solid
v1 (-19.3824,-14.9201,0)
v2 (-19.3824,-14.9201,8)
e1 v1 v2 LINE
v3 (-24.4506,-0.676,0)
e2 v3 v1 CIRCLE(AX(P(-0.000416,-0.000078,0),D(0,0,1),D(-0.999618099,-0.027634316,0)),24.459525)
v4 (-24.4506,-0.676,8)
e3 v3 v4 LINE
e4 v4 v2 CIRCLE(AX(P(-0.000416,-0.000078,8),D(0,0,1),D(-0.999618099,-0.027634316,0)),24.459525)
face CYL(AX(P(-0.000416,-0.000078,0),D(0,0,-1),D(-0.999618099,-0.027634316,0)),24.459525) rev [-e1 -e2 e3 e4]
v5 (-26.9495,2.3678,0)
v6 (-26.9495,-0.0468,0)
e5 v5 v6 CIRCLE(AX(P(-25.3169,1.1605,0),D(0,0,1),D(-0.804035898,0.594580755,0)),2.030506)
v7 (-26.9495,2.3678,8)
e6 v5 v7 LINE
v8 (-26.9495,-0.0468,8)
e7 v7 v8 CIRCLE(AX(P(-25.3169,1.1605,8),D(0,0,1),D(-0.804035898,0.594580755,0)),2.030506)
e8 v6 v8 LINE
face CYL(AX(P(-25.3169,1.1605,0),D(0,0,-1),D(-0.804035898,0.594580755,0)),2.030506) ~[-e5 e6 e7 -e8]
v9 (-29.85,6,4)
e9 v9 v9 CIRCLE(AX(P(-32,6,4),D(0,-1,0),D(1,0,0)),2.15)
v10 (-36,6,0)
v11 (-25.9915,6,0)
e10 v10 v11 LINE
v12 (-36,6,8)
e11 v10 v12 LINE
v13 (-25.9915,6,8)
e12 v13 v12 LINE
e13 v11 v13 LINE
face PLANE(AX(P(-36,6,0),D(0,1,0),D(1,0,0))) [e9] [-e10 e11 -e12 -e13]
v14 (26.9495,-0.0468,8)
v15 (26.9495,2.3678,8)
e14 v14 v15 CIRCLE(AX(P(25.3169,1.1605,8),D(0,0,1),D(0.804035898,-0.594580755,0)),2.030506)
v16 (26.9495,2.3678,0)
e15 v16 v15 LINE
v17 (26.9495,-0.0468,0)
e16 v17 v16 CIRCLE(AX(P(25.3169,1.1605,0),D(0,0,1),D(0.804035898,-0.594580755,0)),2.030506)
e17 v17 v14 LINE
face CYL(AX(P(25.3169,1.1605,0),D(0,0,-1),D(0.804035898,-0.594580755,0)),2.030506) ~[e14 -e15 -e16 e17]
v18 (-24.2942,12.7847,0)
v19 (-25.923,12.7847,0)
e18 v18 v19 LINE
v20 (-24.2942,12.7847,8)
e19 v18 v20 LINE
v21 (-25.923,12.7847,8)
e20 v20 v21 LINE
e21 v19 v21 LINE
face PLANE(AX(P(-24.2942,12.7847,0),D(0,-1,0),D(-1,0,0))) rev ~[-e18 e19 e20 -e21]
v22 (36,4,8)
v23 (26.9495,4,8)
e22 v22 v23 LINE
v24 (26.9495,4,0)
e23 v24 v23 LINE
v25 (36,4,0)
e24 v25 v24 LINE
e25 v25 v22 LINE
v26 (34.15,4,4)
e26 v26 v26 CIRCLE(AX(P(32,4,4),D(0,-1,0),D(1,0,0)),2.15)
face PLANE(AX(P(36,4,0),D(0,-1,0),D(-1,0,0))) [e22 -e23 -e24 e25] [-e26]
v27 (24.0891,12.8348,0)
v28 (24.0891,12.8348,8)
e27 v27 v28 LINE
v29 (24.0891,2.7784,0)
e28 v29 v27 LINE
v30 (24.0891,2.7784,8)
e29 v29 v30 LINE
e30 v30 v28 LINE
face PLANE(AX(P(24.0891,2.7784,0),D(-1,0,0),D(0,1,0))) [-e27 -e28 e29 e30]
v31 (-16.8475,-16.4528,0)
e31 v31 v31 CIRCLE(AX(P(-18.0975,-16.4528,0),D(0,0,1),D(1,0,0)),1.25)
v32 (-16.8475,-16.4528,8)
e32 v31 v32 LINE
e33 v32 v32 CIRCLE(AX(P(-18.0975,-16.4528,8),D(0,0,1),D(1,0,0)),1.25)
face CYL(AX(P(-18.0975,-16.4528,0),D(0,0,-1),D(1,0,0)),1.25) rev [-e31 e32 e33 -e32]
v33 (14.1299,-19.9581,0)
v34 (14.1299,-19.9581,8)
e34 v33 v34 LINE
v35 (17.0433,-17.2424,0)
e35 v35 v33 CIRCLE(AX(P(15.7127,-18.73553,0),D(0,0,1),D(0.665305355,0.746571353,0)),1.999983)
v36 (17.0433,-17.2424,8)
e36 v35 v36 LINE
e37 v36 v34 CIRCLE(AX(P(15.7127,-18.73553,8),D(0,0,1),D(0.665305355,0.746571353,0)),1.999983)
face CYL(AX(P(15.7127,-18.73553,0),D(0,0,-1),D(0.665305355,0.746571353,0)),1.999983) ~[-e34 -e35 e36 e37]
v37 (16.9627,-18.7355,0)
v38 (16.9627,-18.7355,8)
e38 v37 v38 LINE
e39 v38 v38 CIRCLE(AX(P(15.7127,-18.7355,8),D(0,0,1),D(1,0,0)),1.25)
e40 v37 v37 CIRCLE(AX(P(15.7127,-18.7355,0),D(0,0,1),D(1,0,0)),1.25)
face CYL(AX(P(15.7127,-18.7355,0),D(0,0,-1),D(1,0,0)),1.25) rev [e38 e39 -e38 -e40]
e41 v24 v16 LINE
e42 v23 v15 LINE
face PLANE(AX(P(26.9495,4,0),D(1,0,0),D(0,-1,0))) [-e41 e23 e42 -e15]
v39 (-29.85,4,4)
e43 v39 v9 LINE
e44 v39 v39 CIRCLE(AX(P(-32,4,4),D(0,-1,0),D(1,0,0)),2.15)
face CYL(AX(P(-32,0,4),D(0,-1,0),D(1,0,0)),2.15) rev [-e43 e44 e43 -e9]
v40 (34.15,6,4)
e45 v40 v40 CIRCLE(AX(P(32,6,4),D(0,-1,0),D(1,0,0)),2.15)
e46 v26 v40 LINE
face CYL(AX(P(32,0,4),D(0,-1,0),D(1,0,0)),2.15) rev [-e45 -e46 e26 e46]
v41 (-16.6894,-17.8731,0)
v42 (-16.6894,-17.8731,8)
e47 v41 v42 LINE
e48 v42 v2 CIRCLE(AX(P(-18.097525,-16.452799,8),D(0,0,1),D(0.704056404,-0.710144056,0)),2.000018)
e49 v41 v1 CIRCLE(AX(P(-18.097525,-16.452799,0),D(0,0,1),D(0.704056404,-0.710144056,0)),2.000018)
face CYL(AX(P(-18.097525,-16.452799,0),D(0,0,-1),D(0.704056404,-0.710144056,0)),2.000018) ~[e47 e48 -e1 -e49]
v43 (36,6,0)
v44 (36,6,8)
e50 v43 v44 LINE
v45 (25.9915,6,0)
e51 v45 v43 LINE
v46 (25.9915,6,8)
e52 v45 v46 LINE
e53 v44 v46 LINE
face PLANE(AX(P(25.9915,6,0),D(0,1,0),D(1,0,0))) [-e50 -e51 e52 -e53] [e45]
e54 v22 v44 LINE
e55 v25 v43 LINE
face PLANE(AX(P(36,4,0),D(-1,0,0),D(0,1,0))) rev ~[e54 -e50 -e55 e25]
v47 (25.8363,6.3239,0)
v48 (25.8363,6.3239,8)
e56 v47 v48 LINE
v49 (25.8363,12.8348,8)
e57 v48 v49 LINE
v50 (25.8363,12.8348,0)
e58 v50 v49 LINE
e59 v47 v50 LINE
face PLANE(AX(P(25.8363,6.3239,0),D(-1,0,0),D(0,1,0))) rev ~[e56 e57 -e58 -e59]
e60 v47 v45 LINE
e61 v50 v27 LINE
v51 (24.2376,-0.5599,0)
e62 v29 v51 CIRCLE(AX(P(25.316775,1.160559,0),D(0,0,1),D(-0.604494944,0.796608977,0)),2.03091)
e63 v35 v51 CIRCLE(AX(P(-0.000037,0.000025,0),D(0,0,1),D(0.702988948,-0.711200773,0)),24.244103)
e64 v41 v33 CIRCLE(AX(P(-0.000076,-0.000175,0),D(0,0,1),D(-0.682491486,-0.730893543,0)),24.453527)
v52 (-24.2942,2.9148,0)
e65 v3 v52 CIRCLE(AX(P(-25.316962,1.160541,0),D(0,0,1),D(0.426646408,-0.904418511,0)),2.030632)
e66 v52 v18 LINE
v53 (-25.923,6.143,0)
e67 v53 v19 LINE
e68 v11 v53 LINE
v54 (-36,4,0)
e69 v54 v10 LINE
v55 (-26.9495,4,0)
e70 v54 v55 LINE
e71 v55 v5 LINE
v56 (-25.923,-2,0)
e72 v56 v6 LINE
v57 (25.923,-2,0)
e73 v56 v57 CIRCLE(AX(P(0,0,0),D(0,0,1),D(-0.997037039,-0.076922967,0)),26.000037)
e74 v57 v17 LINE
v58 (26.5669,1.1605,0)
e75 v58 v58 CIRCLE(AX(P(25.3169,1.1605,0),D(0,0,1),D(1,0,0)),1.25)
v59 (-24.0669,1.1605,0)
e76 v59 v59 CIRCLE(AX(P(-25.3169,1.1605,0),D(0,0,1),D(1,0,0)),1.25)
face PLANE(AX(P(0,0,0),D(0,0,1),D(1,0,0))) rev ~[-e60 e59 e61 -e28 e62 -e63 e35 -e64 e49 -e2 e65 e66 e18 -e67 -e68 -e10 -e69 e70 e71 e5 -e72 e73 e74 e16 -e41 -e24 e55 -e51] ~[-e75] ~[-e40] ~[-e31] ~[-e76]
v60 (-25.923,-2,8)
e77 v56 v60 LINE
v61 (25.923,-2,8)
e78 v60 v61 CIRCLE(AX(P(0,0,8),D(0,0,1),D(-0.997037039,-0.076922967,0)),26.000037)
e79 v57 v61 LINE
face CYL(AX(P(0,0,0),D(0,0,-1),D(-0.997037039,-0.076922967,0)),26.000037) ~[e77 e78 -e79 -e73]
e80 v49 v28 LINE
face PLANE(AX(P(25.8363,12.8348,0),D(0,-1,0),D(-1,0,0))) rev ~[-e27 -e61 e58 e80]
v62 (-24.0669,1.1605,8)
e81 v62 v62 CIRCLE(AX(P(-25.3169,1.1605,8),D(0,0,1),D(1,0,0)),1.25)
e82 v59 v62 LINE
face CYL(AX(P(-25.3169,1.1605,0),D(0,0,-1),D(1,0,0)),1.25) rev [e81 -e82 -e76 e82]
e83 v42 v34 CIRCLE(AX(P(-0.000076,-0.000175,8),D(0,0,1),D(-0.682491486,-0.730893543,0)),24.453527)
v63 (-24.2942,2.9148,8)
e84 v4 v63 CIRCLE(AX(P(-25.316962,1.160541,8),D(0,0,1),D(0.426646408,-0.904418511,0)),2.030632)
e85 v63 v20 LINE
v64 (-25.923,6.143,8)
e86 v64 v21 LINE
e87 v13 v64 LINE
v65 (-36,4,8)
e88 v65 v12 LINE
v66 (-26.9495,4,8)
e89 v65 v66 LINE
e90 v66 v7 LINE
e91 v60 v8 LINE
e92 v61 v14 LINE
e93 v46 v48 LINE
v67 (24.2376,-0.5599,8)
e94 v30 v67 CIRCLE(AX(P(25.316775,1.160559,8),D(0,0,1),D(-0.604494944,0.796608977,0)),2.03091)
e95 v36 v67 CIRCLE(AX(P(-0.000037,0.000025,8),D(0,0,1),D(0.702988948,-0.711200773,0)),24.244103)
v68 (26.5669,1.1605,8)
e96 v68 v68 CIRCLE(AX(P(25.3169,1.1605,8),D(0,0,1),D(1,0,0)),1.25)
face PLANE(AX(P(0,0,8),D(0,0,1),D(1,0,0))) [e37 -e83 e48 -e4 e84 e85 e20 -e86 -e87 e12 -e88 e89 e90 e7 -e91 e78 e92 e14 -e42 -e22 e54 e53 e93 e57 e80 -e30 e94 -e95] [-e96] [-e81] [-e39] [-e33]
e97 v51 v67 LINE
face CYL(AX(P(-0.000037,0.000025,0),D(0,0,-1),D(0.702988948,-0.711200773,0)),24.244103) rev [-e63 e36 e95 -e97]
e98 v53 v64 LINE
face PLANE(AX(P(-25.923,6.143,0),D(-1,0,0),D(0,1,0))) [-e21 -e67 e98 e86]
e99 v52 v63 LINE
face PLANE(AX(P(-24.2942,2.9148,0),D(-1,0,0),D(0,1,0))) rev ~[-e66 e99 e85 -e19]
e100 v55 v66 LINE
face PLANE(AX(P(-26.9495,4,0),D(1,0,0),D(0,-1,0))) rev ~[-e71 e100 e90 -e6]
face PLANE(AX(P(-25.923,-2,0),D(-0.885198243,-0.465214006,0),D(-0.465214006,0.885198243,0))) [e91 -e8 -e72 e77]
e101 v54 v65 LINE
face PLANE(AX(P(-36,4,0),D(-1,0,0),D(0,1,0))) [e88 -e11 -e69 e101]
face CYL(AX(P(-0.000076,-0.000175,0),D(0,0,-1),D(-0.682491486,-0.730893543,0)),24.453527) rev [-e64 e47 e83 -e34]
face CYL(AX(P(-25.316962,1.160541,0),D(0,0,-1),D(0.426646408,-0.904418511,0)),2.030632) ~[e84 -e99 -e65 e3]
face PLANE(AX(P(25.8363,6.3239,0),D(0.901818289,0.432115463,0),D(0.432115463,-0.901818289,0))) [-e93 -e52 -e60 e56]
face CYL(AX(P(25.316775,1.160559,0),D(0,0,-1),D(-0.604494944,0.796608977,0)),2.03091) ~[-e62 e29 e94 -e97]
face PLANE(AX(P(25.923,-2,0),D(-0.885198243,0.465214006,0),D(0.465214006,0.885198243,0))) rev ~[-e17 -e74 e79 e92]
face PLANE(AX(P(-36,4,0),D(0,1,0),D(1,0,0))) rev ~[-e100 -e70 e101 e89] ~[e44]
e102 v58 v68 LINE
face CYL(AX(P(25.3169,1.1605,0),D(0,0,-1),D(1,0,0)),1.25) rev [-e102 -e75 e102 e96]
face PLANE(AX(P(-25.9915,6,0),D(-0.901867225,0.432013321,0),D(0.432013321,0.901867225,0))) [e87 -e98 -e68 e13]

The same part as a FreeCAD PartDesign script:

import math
import FreeCAD as App
import Part
import Sketcher
Q = App.Units.Quantity

doc = App.newDocument("Part")
body = doc.addObject("PartDesign::Body", "Body")

# Sketch on XY plane
sketch1 = body.newObject("Sketcher::SketchObject", "Sketch")
sketch1.AttachmentSupport = (doc.getObject("XY_Plane"), [""])
sketch1.MapMode = "FlatFace"
sketch1.addGeometry(Part.ArcOfCircle(Part.Circle(App.Vector(0, 0, 0), App.Vector(0, 0, 1), 24.45), math.radians(-133), math.radians(-55)), False)
sketch1.addGeometry(Part.ArcOfCircle(Part.Circle(App.Vector(-18.1, -16.45, 0), App.Vector(0, 0, 1), 2), math.radians(-45), math.radians(130)), False)
sketch1.addGeometry(Part.ArcOfCircle(Part.Circle(App.Vector(0, 0, 0), App.Vector(0, 0, 1), 24.46), math.radians(-178), math.radians(-142)), False)
sketch1.addGeometry(Part.ArcOfCircle(Part.Circle(App.Vector(-25.32, 1.16, 0), App.Vector(0, 0, 1), 2.03), math.radians(-65), math.radians(60)), False)
sketch1.addGeometry(Part.LineSegment(App.Vector(-24.29, 2.91, 0), App.Vector(-24.29, 12.78, 0)), False)
sketch1.addGeometry(Part.LineSegment(App.Vector(-24.29, 12.78, 0), App.Vector(-25.92, 12.78, 0)), False)
sketch1.addGeometry(Part.LineSegment(App.Vector(-25.92, 12.78, 0), App.Vector(-25.92, 6.14, 0)), False)
sketch1.addGeometry(Part.LineSegment(App.Vector(-25.92, 6.14, 0), App.Vector(-25.99, 6, 0)), False)
sketch1.addGeometry(Part.LineSegment(App.Vector(-25.99, 6, 0), App.Vector(-36, 6, 0)), False)
sketch1.addGeometry(Part.LineSegment(App.Vector(-36, 6, 0), App.Vector(-36, 4, 0)), False)
sketch1.addGeometry(Part.LineSegment(App.Vector(-36, 4, 0), App.Vector(-26.95, 4, 0)), False)
sketch1.addGeometry(Part.LineSegment(App.Vector(-26.95, 4, 0), App.Vector(-26.95, 2.37, 0)), False)
sketch1.addGeometry(Part.ArcOfCircle(Part.Circle(App.Vector(-25.32, 1.16, 0), App.Vector(0, 0, 1), 2.03), math.radians(144), math.radians(216)), False)
sketch1.addGeometry(Part.LineSegment(App.Vector(-26.95, -0.05, 0), App.Vector(-25.92, -2, 0)), False)
sketch1.addGeometry(Part.ArcOfCircle(Part.Circle(App.Vector(0, 0, 0), App.Vector(0, 0, 1), 26), math.radians(-176), math.radians(-4)), False)
sketch1.addGeometry(Part.LineSegment(App.Vector(25.92, -2, 0), App.Vector(26.95, -0.05, 0)), False)
sketch1.addGeometry(Part.ArcOfCircle(Part.Circle(App.Vector(25.32, 1.16, 0), App.Vector(0, 0, 1), 2.03), math.radians(-36), math.radians(36)), False)
sketch1.addGeometry(Part.LineSegment(App.Vector(26.95, 2.37, 0), App.Vector(26.95, 4, 0)), False)
sketch1.addGeometry(Part.LineSegment(App.Vector(26.95, 4, 0), App.Vector(36, 4, 0)), False)
sketch1.addGeometry(Part.LineSegment(App.Vector(36, 4, 0), App.Vector(36, 6, 0)), False)
sketch1.addGeometry(Part.LineSegment(App.Vector(36, 6, 0), App.Vector(25.99, 6, 0)), False)
sketch1.addGeometry(Part.LineSegment(App.Vector(25.99, 6, 0), App.Vector(25.84, 6.32, 0)), False)
sketch1.addGeometry(Part.LineSegment(App.Vector(25.84, 6.32, 0), App.Vector(25.84, 12.83, 0)), False)
sketch1.addGeometry(Part.LineSegment(App.Vector(25.84, 12.83, 0), App.Vector(24.09, 12.83, 0)), False)
sketch1.addGeometry(Part.LineSegment(App.Vector(24.09, 12.83, 0), App.Vector(24.09, 2.78, 0)), False)
sketch1.addGeometry(Part.ArcOfCircle(Part.Circle(App.Vector(25.32, 1.16, 0), App.Vector(0, 0, 1), 2.03), math.radians(127), math.radians(238)), False)
sketch1.addGeometry(Part.ArcOfCircle(Part.Circle(App.Vector(0, 0, 0), App.Vector(0, 0, 1), 24.24), math.radians(-45), math.radians(-1)), False)
sketch1.addGeometry(Part.ArcOfCircle(Part.Circle(App.Vector(15.71, -18.74, 0), App.Vector(0, 0, 1), 2), math.radians(48), math.radians(218)), False)
sketch1.addGeometry(Part.Circle(App.Vector(-18.1, -16.45, 0), App.Vector(0, 0, 1), 1.25), False)
sketch1.addGeometry(Part.Circle(App.Vector(15.71, -18.74, 0), App.Vector(0, 0, 1), 1.25), False)
sketch1.addGeometry(Part.Circle(App.Vector(-25.32, 1.16, 0), App.Vector(0, 0, 1), 1.25), False)
sketch1.addGeometry(Part.Circle(App.Vector(25.32, 1.16, 0), App.Vector(0, 0, 1), 1.25), False)
sketch1.addConstraint(Sketcher.Constraint("Coincident", 0, 1, 1, 1))
sketch1.addConstraint(Sketcher.Constraint("Coincident", 1, 2, 2, 2))
sketch1.addConstraint(Sketcher.Constraint("Coincident", 2, 1, 3, 1))
sketch1.addConstraint(Sketcher.Constraint("Coincident", 3, 2, 4, 1))
sketch1.addConstraint(Sketcher.Constraint("Coincident", 4, 2, 5, 1))
sketch1.addConstraint(Sketcher.Constraint("Coincident", 5, 2, 6, 1))
sketch1.addConstraint(Sketcher.Constraint("Coincident", 6, 2, 7, 1))
sketch1.addConstraint(Sketcher.Constraint("Coincident", 7, 2, 8, 1))
sketch1.addConstraint(Sketcher.Constraint("Coincident", 8, 2, 9, 1))
sketch1.addConstraint(Sketcher.Constraint("Coincident", 9, 2, 10, 1))
sketch1.addConstraint(Sketcher.Constraint("Coincident", 10, 2, 11, 1))
sketch1.addConstraint(Sketcher.Constraint("Coincident", 11, 2, 12, 1))
sketch1.addConstraint(Sketcher.Constraint("Coincident", 12, 2, 13, 1))
sketch1.addConstraint(Sketcher.Constraint("Coincident", 13, 2, 14, 1))
sketch1.addConstraint(Sketcher.Constraint("Coincident", 14, 2, 15, 1))
sketch1.addConstraint(Sketcher.Constraint("Coincident", 15, 2, 16, 1))
sketch1.addConstraint(Sketcher.Constraint("Coincident", 16, 2, 17, 1))
sketch1.addConstraint(Sketcher.Constraint("Coincident", 17, 2, 18, 1))
sketch1.addConstraint(Sketcher.Constraint("Coincident", 18, 2, 19, 1))
sketch1.addConstraint(Sketcher.Constraint("Coincident", 19, 2, 20, 1))
sketch1.addConstraint(Sketcher.Constraint("Coincident", 20, 2, 21, 1))
sketch1.addConstraint(Sketcher.Constraint("Coincident", 21, 2, 22, 1))
sketch1.addConstraint(Sketcher.Constraint("Coincident", 22, 2, 23, 1))
sketch1.addConstraint(Sketcher.Constraint("Coincident", 23, 2, 24, 1))
sketch1.addConstraint(Sketcher.Constraint("Coincident", 24, 2, 25, 1))
sketch1.addConstraint(Sketcher.Constraint("Coincident", 25, 2, 26, 2))
sketch1.addConstraint(Sketcher.Constraint("Coincident", 26, 1, 27, 1))
sketch1.addConstraint(Sketcher.Constraint("Coincident", 27, 2, 0, 2))
sketch1.addConstraint(Sketcher.Constraint("Vertical", 4))
sketch1.addConstraint(Sketcher.Constraint("Horizontal", 5))
sketch1.addConstraint(Sketcher.Constraint("Vertical", 6))
sketch1.addConstraint(Sketcher.Constraint("Horizontal", 8))
sketch1.addConstraint(Sketcher.Constraint("Vertical", 9))
sketch1.addConstraint(Sketcher.Constraint("Horizontal", 10))
sketch1.addConstraint(Sketcher.Constraint("Vertical", 11))
sketch1.addConstraint(Sketcher.Constraint("Vertical", 17))
sketch1.addConstraint(Sketcher.Constraint("Horizontal", 18))
sketch1.addConstraint(Sketcher.Constraint("Vertical", 19))
sketch1.addConstraint(Sketcher.Constraint("Horizontal", 20))
sketch1.addConstraint(Sketcher.Constraint("Vertical", 22))
sketch1.addConstraint(Sketcher.Constraint("Horizontal", 23))
sketch1.addConstraint(Sketcher.Constraint("Vertical", 24))
sketch1.addConstraint(Sketcher.Constraint("Coincident", 0, 3, -1, 1))
sketch1.addConstraint(Sketcher.Constraint("Coincident", 2, 3, -1, 1))
sketch1.addConstraint(Sketcher.Constraint("Coincident", 14, 3, -1, 1))
sketch1.addConstraint(Sketcher.Constraint("Coincident", 26, 3, -1, 1))
sketch1.addConstraint(Sketcher.Constraint("Coincident", 12, 3, 3, 3))
sketch1.addConstraint(Sketcher.Constraint("Coincident", 25, 3, 16, 3))
sketch1.addConstraint(Sketcher.Constraint("Coincident", 28, 3, 1, 3))
sketch1.addConstraint(Sketcher.Constraint("Coincident", 29, 3, 27, 3))
sketch1.addConstraint(Sketcher.Constraint("Coincident", 30, 3, 3, 3))
sketch1.addConstraint(Sketcher.Constraint("Coincident", 31, 3, 16, 3))
sketch1.addConstraint(Sketcher.Constraint("Equal", 3, 12))
sketch1.addConstraint(Sketcher.Constraint("Equal", 12, 16))
sketch1.addConstraint(Sketcher.Constraint("Equal", 1, 27))
sketch1.addConstraint(Sketcher.Constraint("Equal", 28, 29))
sketch1.addConstraint(Sketcher.Constraint("Equal", 29, 30))
sketch1.addConstraint(Sketcher.Constraint("Equal", 30, 31))
sketch1.addConstraint(Sketcher.Constraint("Symmetric", 3, 3, 16, 3, -2))
sketch1.addConstraint(Sketcher.Constraint("Symmetric", 10, 2, 17, 2, -2))
sketch1.addConstraint(Sketcher.Constraint("Symmetric", 8, 2, 19, 2, -2))
sketch1.addConstraint(Sketcher.Constraint("Horizontal", 13, 2, 14, 2))
sketch1.addConstraint(Sketcher.Constraint("Horizontal", 12, 2, 15, 2))
sketch1.addConstraint(Sketcher.Constraint("Vertical", 11, 2, 12, 2))
sketch1.addConstraint(Sketcher.Constraint("Vertical", 6, 2, 13, 2))
sketch1.addConstraint(Sketcher.Constraint("Equal", 8, 20))
sketch1.addConstraint(Sketcher.Constraint("Radius", 1, Q("2 mm")))
sketch1.addConstraint(Sketcher.Constraint("Diameter", 28, Q("2.5 mm")))
sketch1.addConstraint(Sketcher.Constraint("DistanceY", -1, 1, 9, 2, Q("4 mm")))
sketch1.addConstraint(Sketcher.Constraint("Radius", 14, Q("26 mm")))
sketch1.addConstraint(Sketcher.Constraint("DistanceY", 9, 2, 9, 1, Q("2 mm")))
sketch1.addConstraint(Sketcher.Constraint("Radius", 2, Q("24.46 mm")))
sketch1.addConstraint(Sketcher.Constraint("DistanceX", 8, 2, -1, 1, Q("36 mm")))
sketch1.addConstraint(Sketcher.Constraint("DistanceY", 13, 2, -1, 1, Q("2 mm")))
sketch1.addConstraint(Sketcher.Constraint("Radius", 25, Q("2.031 mm")))
sketch1.addConstraint(Sketcher.Constraint("Radius", 26, Q("24.244 mm")))
sketch1.addConstraint(Sketcher.Constraint("DistanceY", 4, 1, 4, 2, Q("9.87 mm")))
sketch1.addConstraint(Sketcher.Constraint("Radius", 0, Q("24.4537 mm")))
sketch1.addConstraint(Sketcher.Constraint("Radius", 3, Q("2.0306 mm")))
sketch1.addConstraint(Sketcher.Constraint("DistanceY", 22, 1, 22, 2, Q("6.511 mm")))
sketch1.addConstraint(Sketcher.Constraint("DistanceY", 25, 2, -1, 1, Q("0.56 mm")))
sketch1.addConstraint(Sketcher.Constraint("DistanceX", -1, 1, 27, 2, Q("14.13 mm")))
sketch1.addConstraint(Sketcher.Constraint("DistanceX", 5, 2, 5, 1, Q("1.6288 mm")))
sketch1.addConstraint(Sketcher.Constraint("DistanceX", 8, 2, 8, 1, Q("10.0085 mm")))
sketch1.addConstraint(Sketcher.Constraint("DistanceX", 10, 1, 10, 2, Q("9.0505 mm")))
sketch1.addConstraint(Sketcher.Constraint("DistanceX", 23, 2, 23, 1, Q("1.7472 mm")))
sketch1.addConstraint(Sketcher.Constraint("DistanceY", 6, 2, 6, 1, Q("6.6417 mm")))
sketch1.addConstraint(Sketcher.Constraint("DistanceY", 11, 2, 11, 1, Q("1.6322 mm")))
sketch1.addConstraint(Sketcher.Constraint("DistanceY", 24, 2, 24, 1, Q("10.0564 mm")))
sketch1.addConstraint(Sketcher.Constraint("DistanceY", 0, 1, -1, 1, Q("17.873 mm")))
sketch1.addConstraint(Sketcher.Constraint("DistanceY", -1, 1, 21, 2, Q("6.324 mm")))
sketch1.addConstraint(Sketcher.Constraint("DistanceY", 27, 3, 16, 3, Q("19.896 mm")))
sketch1.addConstraint(Sketcher.Constraint("DistanceX", 1, 3, 0, 1, Q("1.408 mm")))
pad1 = body.newObject("PartDesign::Pad", "Pad")
pad1.Profile = sketch1
pad1.Length = 8

# Sketch on XZ plane
sketch2 = body.newObject("Sketcher::SketchObject", "Sketch001")
sketch2.AttachmentSupport = (doc.getObject("XZ_Plane"), [""])
sketch2.MapMode = "FlatFace"
sketch2.addGeometry(Part.Circle(App.Vector(-32, 4, 0), App.Vector(0, 0, 1), 2.1), False)
sketch2.addGeometry(Part.Circle(App.Vector(32, 4, 0), App.Vector(0, 0, 1), 2.1), False)
sketch2.addConstraint(Sketcher.Constraint("Equal", 0, 1))
sketch2.addConstraint(Sketcher.Constraint("Symmetric", 0, 3, 1, 3, -2))
sketch2.addConstraint(Sketcher.Constraint("Diameter", 0, Q("4.3 mm")))
sketch2.addConstraint(Sketcher.Constraint("DistanceY", -1, 1, 0, 3, Q("4 mm")))
sketch2.addConstraint(Sketcher.Constraint("DistanceX", 0, 3, -1, 1, Q("32 mm")))
pocket1 = body.newObject("PartDesign::Pocket", "Pocket")
pocket1.Profile = sketch2
pocket1.Length = 8

doc.recompute()
